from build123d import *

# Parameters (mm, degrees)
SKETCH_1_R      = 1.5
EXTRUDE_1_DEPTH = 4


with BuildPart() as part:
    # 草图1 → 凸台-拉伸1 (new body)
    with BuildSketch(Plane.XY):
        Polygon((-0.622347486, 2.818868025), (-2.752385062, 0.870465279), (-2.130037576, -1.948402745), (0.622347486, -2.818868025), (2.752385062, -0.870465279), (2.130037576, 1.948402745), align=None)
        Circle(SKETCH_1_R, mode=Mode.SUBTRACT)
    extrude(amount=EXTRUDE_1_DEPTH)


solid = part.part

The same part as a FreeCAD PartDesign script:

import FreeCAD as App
import Part
import Sketcher
Q = App.Units.Quantity

doc = App.newDocument("Part")
params = doc.addObject("Spreadsheet::Sheet", "Params")
for row, (alias, value) in enumerate([
    ("sketch1_diameter", "3 mm"),
    ("pad1_length", "4 mm"),
], start=1):
    params.set(f"A{row}", alias)
    params.set(f"B{row}", "=" + value)
    params.setAlias(f"B{row}", alias)

body = doc.addObject("PartDesign::Body", "Body")

# Sketch on XY plane
sketch1 = doc.addObject("Sketcher::SketchObject", "Sketch")
body.addObject(sketch1)
sketch1.AttachmentSupport = (doc.XY_Plane, [""])
sketch1.MapMode = "FlatFace"
sketch1.addGeometry(Part.LineSegment(App.Vector(-0.622347, 2.818868, 0), App.Vector(-2.752385, 0.870465, 0)), False)
sketch1.addGeometry(Part.LineSegment(App.Vector(-2.752385, 0.870465, 0), App.Vector(-2.130038, -1.948403, 0)), False)
sketch1.addGeometry(Part.LineSegment(App.Vector(-2.130038, -1.948403, 0), App.Vector(0.622347, -2.818868, 0)), False)
sketch1.addGeometry(Part.LineSegment(App.Vector(0.622347, -2.818868, 0), App.Vector(2.752385, -0.870465, 0)), False)
sketch1.addGeometry(Part.LineSegment(App.Vector(2.752385, -0.870465, 0), App.Vector(2.130038, 1.948403, 0)), False)
sketch1.addGeometry(Part.LineSegment(App.Vector(2.130038, 1.948403, 0), App.Vector(-0.622347, 2.818868, 0)), False)
sketch1.addGeometry(Part.Circle(App.Vector(0, 0, 0), App.Vector(0, 0, 1), 1.5), False)
sketch1.addConstraint(Sketcher.Constraint("Coincident", 0, 2, 1, 1))
sketch1.addConstraint(Sketcher.Constraint("Coincident", 1, 2, 2, 1))
sketch1.addConstraint(Sketcher.Constraint("Coincident", 2, 2, 3, 1))
sketch1.addConstraint(Sketcher.Constraint("Coincident", 3, 2, 4, 1))
sketch1.addConstraint(Sketcher.Constraint("Coincident", 4, 2, 5, 1))
sketch1.addConstraint(Sketcher.Constraint("Coincident", 5, 2, 0, 1))
sketch1.addConstraint(Sketcher.Constraint("Coincident", 6, 3, -1, 1))
sketch1.addConstraint(Sketcher.Constraint("Symmetric", 0, 2, 3, 2, -1, 1))
sketch1.addConstraint(Sketcher.Constraint("Symmetric", 1, 2, 4, 2, -1, 1))
sketch1.addConstraint(Sketcher.Constraint("Symmetric", 2, 2, 5, 2, -1, 1))
sketch1.addConstraint(Sketcher.Constraint("Equal", 0, 1))
sketch1.addConstraint(Sketcher.Constraint("Equal", 1, 2))
sketch1.addConstraint(Sketcher.Constraint("Diameter", 6, 3.0))
sketch1.addConstraint(Sketcher.Constraint("Angle", 0, Q("-137.550003 deg")))
sketch1.addConstraint(Sketcher.Constraint("Angle", 1, Q("-77.550003 deg")))
sketch1.addConstraint(Sketcher.Constraint("Angle", 2, Q("-17.550004 deg")))
sketch1.addConstraint(Sketcher.Constraint("Distance", 0, 2.886751))
sketch1.setExpression("Constraints[12]", "Params.sketch1_diameter")
pad1 = doc.addObject("PartDesign::Pad", "Pad")
body.addObject(pad1)
pad1.Profile = sketch1
pad1.setExpression("Length", "Params.pad1_length")

doc.recompute()
